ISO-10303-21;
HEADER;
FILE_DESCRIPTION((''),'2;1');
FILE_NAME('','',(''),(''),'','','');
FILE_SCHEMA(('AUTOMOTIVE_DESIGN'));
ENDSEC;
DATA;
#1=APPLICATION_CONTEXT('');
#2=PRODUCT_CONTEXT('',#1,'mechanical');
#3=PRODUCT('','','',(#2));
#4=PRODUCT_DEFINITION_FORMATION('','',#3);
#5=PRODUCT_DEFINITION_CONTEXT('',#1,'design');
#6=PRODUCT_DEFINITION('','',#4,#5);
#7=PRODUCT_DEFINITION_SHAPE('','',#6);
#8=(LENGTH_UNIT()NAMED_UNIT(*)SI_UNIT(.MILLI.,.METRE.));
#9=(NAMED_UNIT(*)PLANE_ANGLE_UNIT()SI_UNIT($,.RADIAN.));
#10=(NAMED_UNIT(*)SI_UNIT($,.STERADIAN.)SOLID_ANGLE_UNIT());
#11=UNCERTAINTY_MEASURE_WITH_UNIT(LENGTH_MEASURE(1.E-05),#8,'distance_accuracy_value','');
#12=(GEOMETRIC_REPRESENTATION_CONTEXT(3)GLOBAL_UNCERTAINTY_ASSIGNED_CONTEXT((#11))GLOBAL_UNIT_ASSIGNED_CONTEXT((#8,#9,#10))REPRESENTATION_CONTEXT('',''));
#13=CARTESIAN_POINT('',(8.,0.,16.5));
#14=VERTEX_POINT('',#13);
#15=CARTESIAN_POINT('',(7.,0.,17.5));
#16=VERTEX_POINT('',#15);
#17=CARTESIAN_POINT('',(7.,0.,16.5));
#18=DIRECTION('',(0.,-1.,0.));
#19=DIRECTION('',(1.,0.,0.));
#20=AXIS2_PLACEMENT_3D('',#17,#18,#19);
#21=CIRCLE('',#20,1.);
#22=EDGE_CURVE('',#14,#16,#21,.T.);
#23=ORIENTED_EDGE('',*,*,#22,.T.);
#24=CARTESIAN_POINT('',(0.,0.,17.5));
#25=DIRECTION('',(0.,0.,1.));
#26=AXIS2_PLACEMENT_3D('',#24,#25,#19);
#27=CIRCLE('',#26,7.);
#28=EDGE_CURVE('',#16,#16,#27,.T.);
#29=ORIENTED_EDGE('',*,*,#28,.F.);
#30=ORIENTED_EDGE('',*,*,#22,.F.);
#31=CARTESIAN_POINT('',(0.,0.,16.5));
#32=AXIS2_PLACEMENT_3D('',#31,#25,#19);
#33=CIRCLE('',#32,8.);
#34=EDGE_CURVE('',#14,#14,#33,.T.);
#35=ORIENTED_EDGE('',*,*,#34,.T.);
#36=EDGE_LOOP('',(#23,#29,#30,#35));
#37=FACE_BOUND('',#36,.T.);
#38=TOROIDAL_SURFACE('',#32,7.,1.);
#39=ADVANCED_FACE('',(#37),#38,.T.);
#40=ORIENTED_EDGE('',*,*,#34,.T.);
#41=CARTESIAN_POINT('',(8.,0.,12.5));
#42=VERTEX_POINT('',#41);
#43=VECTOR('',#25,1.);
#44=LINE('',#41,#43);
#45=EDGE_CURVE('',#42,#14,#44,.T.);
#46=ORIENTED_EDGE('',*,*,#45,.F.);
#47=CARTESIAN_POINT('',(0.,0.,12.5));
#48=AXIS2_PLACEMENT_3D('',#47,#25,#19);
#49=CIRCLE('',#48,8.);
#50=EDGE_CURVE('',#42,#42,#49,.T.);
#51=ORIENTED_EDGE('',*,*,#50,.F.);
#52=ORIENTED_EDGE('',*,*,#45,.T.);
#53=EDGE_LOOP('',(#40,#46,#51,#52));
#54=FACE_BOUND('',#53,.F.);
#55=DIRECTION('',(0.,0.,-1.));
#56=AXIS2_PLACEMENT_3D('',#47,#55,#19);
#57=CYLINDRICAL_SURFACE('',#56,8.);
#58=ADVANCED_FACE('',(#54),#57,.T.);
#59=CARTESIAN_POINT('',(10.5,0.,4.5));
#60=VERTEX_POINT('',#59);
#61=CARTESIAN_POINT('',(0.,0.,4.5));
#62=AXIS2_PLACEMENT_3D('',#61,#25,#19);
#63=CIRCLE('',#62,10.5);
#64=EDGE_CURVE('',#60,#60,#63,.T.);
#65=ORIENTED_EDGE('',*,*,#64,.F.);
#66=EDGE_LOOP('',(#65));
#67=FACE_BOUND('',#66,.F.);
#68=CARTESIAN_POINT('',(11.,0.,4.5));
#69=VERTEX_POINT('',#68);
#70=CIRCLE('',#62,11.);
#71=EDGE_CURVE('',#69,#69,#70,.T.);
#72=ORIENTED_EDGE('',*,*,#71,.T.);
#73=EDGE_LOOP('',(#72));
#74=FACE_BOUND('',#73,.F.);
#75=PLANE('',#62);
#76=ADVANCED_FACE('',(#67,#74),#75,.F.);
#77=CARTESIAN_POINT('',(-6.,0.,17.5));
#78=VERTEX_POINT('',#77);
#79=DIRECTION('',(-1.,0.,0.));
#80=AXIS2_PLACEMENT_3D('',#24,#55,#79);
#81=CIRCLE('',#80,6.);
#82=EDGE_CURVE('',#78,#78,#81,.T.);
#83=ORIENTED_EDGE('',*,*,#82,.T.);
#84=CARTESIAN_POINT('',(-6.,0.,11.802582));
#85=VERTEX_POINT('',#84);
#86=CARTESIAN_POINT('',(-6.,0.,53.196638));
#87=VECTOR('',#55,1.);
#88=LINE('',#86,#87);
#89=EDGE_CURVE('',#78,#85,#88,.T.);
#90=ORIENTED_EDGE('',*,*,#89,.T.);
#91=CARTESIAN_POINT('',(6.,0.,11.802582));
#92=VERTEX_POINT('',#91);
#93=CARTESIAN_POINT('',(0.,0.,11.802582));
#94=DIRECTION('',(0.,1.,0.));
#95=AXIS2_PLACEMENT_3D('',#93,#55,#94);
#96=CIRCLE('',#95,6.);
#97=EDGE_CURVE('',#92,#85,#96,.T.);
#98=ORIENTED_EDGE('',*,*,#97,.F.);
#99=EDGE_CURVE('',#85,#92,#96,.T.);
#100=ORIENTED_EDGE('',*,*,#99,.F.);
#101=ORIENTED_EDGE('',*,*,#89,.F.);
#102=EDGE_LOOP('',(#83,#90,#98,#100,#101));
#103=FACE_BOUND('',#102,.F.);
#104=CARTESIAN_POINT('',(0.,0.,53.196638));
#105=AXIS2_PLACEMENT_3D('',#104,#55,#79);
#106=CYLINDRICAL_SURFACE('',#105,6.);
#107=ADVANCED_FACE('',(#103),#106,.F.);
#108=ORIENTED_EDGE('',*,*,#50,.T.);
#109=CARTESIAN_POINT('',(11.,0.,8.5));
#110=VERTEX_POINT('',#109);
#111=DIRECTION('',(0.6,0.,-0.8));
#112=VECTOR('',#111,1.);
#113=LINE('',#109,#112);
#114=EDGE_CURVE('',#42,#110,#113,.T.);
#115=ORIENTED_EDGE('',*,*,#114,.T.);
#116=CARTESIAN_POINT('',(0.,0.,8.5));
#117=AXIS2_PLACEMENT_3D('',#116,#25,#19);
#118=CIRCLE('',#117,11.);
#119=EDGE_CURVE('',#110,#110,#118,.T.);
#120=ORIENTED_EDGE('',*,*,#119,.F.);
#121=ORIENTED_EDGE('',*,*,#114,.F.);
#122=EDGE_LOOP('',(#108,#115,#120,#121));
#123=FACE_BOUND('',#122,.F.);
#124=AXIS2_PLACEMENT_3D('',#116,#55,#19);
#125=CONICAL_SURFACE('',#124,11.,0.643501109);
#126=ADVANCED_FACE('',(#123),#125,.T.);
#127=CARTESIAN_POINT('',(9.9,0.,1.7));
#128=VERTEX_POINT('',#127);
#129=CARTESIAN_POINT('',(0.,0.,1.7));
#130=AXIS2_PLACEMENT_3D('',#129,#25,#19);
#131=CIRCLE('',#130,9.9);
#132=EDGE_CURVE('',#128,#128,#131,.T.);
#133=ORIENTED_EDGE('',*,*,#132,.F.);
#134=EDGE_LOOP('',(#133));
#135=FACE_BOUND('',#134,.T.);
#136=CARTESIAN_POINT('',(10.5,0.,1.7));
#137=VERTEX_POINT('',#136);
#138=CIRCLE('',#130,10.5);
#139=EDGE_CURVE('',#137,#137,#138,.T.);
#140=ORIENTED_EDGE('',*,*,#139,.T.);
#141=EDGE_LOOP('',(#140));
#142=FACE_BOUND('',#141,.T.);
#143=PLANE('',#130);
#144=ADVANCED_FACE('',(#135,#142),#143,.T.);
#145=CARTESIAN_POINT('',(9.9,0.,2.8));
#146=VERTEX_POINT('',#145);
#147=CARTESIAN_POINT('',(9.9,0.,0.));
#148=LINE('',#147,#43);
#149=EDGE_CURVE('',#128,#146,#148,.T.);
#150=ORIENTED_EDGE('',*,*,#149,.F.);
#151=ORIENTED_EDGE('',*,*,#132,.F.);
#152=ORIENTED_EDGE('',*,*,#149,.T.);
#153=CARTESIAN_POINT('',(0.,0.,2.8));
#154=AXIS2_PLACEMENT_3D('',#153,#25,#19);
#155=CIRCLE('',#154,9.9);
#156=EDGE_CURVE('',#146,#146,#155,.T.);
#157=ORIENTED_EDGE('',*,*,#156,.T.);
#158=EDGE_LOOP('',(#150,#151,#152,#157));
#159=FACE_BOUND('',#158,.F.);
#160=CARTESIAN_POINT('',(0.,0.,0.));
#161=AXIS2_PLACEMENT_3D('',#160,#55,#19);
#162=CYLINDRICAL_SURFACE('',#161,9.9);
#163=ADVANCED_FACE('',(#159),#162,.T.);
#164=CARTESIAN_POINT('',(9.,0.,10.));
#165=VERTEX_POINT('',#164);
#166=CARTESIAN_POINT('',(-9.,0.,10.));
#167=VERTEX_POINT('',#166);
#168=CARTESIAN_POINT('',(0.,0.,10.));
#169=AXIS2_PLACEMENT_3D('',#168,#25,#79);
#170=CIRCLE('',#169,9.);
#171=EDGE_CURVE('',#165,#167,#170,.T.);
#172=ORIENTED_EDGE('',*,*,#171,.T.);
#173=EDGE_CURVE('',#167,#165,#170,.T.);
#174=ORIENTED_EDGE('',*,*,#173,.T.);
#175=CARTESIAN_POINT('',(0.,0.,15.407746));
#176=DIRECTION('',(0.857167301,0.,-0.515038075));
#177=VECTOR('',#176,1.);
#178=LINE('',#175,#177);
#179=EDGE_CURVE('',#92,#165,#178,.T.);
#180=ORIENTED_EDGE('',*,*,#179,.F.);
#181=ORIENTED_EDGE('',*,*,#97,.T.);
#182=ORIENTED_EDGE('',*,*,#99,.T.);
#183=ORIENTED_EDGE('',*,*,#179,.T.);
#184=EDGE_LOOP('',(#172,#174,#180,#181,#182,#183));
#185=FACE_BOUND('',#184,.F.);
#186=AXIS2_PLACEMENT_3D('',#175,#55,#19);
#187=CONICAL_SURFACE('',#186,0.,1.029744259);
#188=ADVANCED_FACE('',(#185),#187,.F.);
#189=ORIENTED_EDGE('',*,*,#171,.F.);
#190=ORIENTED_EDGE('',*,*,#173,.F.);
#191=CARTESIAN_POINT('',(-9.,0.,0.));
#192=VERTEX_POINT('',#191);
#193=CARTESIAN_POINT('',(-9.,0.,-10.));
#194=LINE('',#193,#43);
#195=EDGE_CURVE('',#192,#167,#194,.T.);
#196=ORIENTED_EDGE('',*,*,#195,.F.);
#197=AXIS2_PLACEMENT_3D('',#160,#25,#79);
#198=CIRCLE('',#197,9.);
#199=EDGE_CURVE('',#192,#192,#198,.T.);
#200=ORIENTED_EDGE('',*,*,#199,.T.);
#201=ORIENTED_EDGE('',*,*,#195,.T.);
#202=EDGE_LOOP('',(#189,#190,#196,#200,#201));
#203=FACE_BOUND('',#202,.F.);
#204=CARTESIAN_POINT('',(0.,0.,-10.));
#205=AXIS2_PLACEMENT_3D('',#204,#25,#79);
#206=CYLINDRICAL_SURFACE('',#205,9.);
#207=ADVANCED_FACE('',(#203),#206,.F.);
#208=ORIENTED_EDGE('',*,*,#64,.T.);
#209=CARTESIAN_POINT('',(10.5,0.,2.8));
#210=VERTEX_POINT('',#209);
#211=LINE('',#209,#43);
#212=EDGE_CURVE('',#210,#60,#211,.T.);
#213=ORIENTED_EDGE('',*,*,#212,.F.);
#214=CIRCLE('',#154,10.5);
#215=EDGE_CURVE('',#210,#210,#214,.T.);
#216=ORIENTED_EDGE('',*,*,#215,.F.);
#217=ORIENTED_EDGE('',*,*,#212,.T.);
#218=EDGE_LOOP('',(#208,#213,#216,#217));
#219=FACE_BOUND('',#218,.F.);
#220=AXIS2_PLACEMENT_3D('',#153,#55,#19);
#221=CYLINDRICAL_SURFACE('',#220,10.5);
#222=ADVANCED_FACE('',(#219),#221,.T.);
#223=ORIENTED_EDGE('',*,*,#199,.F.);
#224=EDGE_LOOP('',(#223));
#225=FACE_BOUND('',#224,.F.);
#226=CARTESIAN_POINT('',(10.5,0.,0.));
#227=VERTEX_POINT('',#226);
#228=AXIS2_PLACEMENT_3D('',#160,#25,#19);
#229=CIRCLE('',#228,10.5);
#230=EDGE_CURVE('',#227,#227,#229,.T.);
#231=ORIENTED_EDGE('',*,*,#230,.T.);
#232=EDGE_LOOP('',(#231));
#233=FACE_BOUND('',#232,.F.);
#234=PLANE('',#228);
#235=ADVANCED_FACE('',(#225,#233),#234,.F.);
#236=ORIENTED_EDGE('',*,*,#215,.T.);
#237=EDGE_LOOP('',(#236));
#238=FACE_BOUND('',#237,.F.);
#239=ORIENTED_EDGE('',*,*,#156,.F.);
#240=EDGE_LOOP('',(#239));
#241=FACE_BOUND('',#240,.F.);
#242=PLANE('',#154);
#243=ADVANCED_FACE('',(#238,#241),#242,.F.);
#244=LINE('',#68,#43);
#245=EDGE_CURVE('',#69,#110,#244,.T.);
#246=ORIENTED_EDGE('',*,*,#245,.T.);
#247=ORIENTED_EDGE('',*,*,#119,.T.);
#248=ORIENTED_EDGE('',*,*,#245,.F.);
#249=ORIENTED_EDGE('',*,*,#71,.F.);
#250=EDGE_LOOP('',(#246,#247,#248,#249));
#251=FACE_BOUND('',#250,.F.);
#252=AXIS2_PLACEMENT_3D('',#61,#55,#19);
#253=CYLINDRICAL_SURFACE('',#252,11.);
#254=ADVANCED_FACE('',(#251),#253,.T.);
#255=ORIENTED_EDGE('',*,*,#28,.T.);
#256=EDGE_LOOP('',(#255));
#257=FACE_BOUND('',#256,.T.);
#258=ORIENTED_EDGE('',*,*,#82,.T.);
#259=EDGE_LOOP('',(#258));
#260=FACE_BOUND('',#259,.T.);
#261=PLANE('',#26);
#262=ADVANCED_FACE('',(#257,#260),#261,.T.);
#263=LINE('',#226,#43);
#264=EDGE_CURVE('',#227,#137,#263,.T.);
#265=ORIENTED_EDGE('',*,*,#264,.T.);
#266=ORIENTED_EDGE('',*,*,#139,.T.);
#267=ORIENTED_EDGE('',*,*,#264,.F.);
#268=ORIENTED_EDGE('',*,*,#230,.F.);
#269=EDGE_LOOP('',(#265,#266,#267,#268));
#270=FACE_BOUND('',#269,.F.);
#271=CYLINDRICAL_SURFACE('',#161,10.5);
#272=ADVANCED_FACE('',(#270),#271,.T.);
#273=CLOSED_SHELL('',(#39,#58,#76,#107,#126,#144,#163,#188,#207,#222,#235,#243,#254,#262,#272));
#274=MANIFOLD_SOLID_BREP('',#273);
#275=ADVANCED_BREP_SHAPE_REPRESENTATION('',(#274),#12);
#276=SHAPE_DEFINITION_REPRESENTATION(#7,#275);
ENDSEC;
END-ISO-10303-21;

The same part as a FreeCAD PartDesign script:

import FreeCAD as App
import Part
import Sketcher

V = App.Vector


def edges_at(feature, points):
    """Names of the edges that pass closest to the given points."""
    edges = feature.Shape.Edges
    near = lambda p: min(range(len(edges)), key=lambda i: edges[i].distToShape(Part.Vertex(*p))[0])
    return sorted({f"Edge{near(p) + 1}" for p in points})

doc = App.newDocument("Part")
body = doc.addObject("PartDesign::Body", "Body")

# Sketch on XY plane
sketch1 = body.newObject("Sketcher::SketchObject", "Sketch")
sketch1.AttachmentSupport = (doc.getObject("XY_Plane"), [""])
sketch1.MapMode = "FlatFace"
sketch1.addGeometry(Part.Circle(V(0, 0, 0), V(0, 0, 1), 10), False)
sketch1.addGeometry(Part.Circle(V(0, 0, 0), V(0, 0, 1), 10), False)
sketch1.addConstraint(Sketcher.Constraint("Coincident", 0, 3, -1, 1))
sketch1.addConstraint(Sketcher.Constraint("Coincident", 1, 3, -1, 1))
sketch1.addConstraint(Sketcher.Constraint("Diameter", 0, 21.0))
sketch1.addConstraint(Sketcher.Constraint("Diameter", 1, 19.8))
pad1 = body.newObject("PartDesign::Pad", "Pad")
pad1.Profile = sketch1
pad1.Length = 1.7

# Sketch on XY plane
sketch2 = body.newObject("Sketcher::SketchObject", "Sketch001")
sketch2.AttachmentSupport = (doc.getObject("XY_Plane"), [""])
sketch2.MapMode = "FlatFace"
sketch2.addGeometry(Part.Circle(V(0, 0, 0), V(0, 0, 1), 10), False)
sketch2.addConstraint(Sketcher.Constraint("Coincident", 0, 3, -1, 1))
sketch2.addConstraint(Sketcher.Constraint("Diameter", 0, 19.8))
pad2 = body.newObject("PartDesign::Pad", "Pad001")
pad2.Profile = sketch2
pad2.Length = 2.8

# Sketch on XY plane
sketch3 = body.newObject("Sketcher::SketchObject", "Sketch002")
sketch3.AttachmentSupport = (doc.getObject("XY_Plane"), [""])
sketch3.MapMode = "FlatFace"
sketch3.AttachmentOffset = App.Placement(V(0, 0, 2.8), App.Rotation())
sketch3.addGeometry(Part.Circle(V(0, 0, 0), V(0, 0, 1), 10), False)
sketch3.addConstraint(Sketcher.Constraint("Coincident", 0, 3, -1, 1))
sketch3.addConstraint(Sketcher.Constraint("Diameter", 0, 21.0))
pad3 = body.newObject("PartDesign::Pad", "Pad002")
pad3.Profile = sketch3
pad3.Length = 1.7

# Sketch on XY plane
sketch4 = body.newObject("Sketcher::SketchObject", "Sketch003")
sketch4.AttachmentSupport = (doc.getObject("XY_Plane"), [""])
sketch4.MapMode = "FlatFace"
sketch4.AttachmentOffset = App.Placement(V(0, 0, 4.5), App.Rotation())
sketch4.addGeometry(Part.Circle(V(0, 0, 0), V(0, 0, 1), 11), False)
sketch4.addConstraint(Sketcher.Constraint("Coincident", 0, 3, -1, 1))
sketch4.addConstraint(Sketcher.Constraint("Diameter", 0, 22.0))
pad4 = body.newObject("PartDesign::Pad", "Pad003")
pad4.Profile = sketch4
pad4.Length = 8
doc.recompute()

chamfer = body.newObject("PartDesign::Chamfer", "Chamfer")
chamfer.Base = (pad4, edges_at(pad4, [(-11, 0, 12.5)]))
chamfer.ChamferType = "Two distances"
chamfer.Size = 3
chamfer.Size2 = 4
chamfer.FlipDirection = True

# Sketch on XY plane
sketch5 = body.newObject("Sketcher::SketchObject", "Sketch004")
sketch5.AttachmentSupport = (doc.getObject("XY_Plane"), [""])
sketch5.MapMode = "FlatFace"
sketch5.AttachmentOffset = App.Placement(V(0, 0, 12.5), App.Rotation())
sketch5.addGeometry(Part.Circle(V(0, 0, 0), V(0, 0, 1), 8), False)
sketch5.addConstraint(Sketcher.Constraint("Coincident", 0, 3, -1, 1))
sketch5.addConstraint(Sketcher.Constraint("Diameter", 0, 16.0))
pad5 = body.newObject("PartDesign::Pad", "Pad004")
pad5.Profile = sketch5
pad5.Length = 5

# Sketch on XY plane
sketch6 = body.newObject("Sketcher::SketchObject", "Sketch005")
sketch6.AttachmentSupport = (doc.getObject("XY_Plane"), [""])
sketch6.MapMode = "FlatFace"
sketch6.addGeometry(Part.Circle(V(0, 0, 0), V(0, 0, 1), 9), False)
sketch6.addConstraint(Sketcher.Constraint("Coincident", 0, 3, -1, 1))
sketch6.addConstraint(Sketcher.Constraint("Diameter", 0, 18.0))
doc.recompute()
hole = body.newObject("PartDesign::Hole", "Hole")
hole.Profile = sketch6
hole.ThreadType = "None"
hole.Diameter = 18
hole.DepthType = "Dimension"
hole.Depth = 10
hole.DrillPoint = "Angled"
hole.DrillPointAngle = 118
hole.Reversed = True

# Sketch on XY plane
sketch7 = body.newObject("Sketcher::SketchObject", "Sketch006")
sketch7.AttachmentSupport = (doc.getObject("XY_Plane"), [""])
sketch7.MapMode = "FlatFace"
sketch7.AttachmentOffset = App.Placement(V(0, 0, 17.5), App.Rotation())
sketch7.addGeometry(Part.Circle(V(0, 0, 0), V(0, 0, 1), 6), False)
sketch7.addConstraint(Sketcher.Constraint("Coincident", 0, 3, -1, 1))
sketch7.addConstraint(Sketcher.Constraint("Diameter", 0, 12.0))
doc.recompute()
hole2 = body.newObject("PartDesign::Hole", "Hole001")
hole2.Profile = sketch7
hole2.ThreadType = "None"
hole2.Diameter = 12
hole2.DepthType = "ThroughAll"
doc.recompute()

fillet = body.newObject("PartDesign::Fillet", "Fillet")
fillet.Base = (hole2, edges_at(hole2, [(-8, 0, 17.5)]))
fillet.Radius = 1

doc.recompute()
